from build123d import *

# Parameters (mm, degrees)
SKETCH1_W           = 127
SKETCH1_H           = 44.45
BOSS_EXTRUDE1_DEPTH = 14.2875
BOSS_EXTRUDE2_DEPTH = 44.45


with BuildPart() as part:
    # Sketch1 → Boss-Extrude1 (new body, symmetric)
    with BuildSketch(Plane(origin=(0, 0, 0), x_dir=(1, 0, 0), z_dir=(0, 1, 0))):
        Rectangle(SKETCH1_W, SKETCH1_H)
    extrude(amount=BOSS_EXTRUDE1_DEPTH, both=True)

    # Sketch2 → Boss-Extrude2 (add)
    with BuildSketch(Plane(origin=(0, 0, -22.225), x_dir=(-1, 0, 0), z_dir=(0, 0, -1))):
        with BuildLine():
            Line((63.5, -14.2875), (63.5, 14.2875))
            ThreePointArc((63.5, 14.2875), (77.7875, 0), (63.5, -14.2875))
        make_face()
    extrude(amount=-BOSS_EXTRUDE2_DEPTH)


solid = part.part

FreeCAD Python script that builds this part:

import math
import FreeCAD as App
import Part
import Sketcher
Q = App.Units.Quantity

doc = App.newDocument("Part")
body = doc.addObject("PartDesign::Body", "Body")

sketch1 = doc.addObject("Sketcher::SketchObject", "Sketch")
body.addObject(sketch1)
sketch1.AttachmentSupport = (doc.XZ_Plane, [""])
sketch1.MapMode = "FlatFace"
sketch1.addGeometry(Part.LineSegment(App.Vector(-64, -22, 0), App.Vector(-64, 22, 0)), False)
sketch1.addGeometry(Part.LineSegment(App.Vector(-64, 22, 0), App.Vector(64, 22, 0)), False)
sketch1.addGeometry(Part.LineSegment(App.Vector(64, 22, 0), App.Vector(64, -22, 0)), False)
sketch1.addGeometry(Part.LineSegment(App.Vector(64, -22, 0), App.Vector(-64, -22, 0)), False)
sketch1.addConstraint(Sketcher.Constraint("Coincident", 0, 2, 1, 1))
sketch1.addConstraint(Sketcher.Constraint("Coincident", 1, 2, 2, 1))
sketch1.addConstraint(Sketcher.Constraint("Coincident", 2, 2, 3, 1))
sketch1.addConstraint(Sketcher.Constraint("Coincident", 3, 2, 0, 1))
sketch1.addConstraint(Sketcher.Constraint("Vertical", 0))
sketch1.addConstraint(Sketcher.Constraint("Horizontal", 1))
sketch1.addConstraint(Sketcher.Constraint("Vertical", 2))
sketch1.addConstraint(Sketcher.Constraint("Horizontal", 3))
sketch1.addConstraint(Sketcher.Constraint("Symmetric", 0, 2, 2, 2, -1, 1))
sketch1.addConstraint(Sketcher.Constraint("DistanceX", 1, 1, 1, 2, Q("5 in")))
sketch1.addConstraint(Sketcher.Constraint("DistanceY", 0, 1, 0, 2, Q("1.75 in")))
pad1 = doc.addObject("PartDesign::Pad", "Pad")
body.addObject(pad1)
pad1.Profile = sketch1
pad1.Length = Q("1.125 in")
pad1.Midplane = True

sketch2 = doc.addObject("Sketcher::SketchObject", "Sketch001")
body.addObject(sketch2)
sketch2.AttachmentSupport = (doc.XY_Plane, [""])
sketch2.MapMode = "FlatFace"
sketch2.AttachmentOffset = App.Placement(App.Vector(0, 0, -0.875 * 25.4), App.Rotation())
sketch2.addGeometry(Part.LineSegment(App.Vector(-64, 14, 0), App.Vector(-64, -14, 0)), False)
sketch2.addGeometry(Part.ArcOfCircle(Part.Circle(App.Vector(-64, 0, 0), App.Vector(0, 0, 1), 14), math.radians(90), math.radians(270)), False)
sketch2.addConstraint(Sketcher.Constraint("Coincident", 0, 1, 1, 1))
sketch2.addConstraint(Sketcher.Constraint("Coincident", 1, 2, 0, 2))
sketch2.addConstraint(Sketcher.Constraint("Vertical", 0))
sketch2.addConstraint(Sketcher.Constraint("PointOnObject", 1, 3, -1))
sketch2.addConstraint(Sketcher.Constraint("Vertical", 1, 3, 0, 1))
sketch2.addConstraint(Sketcher.Constraint("Radius", 1, Q("0.5625 in")))
sketch2.addConstraint(Sketcher.Constraint("DistanceX", 1, 3, -1, 1, Q("2.5 in")))
pad2 = doc.addObject("PartDesign::Pad", "Pad001")
body.addObject(pad2)
pad2.Profile = sketch2
pad2.Length = Q("1.75 in")

doc.recompute()
